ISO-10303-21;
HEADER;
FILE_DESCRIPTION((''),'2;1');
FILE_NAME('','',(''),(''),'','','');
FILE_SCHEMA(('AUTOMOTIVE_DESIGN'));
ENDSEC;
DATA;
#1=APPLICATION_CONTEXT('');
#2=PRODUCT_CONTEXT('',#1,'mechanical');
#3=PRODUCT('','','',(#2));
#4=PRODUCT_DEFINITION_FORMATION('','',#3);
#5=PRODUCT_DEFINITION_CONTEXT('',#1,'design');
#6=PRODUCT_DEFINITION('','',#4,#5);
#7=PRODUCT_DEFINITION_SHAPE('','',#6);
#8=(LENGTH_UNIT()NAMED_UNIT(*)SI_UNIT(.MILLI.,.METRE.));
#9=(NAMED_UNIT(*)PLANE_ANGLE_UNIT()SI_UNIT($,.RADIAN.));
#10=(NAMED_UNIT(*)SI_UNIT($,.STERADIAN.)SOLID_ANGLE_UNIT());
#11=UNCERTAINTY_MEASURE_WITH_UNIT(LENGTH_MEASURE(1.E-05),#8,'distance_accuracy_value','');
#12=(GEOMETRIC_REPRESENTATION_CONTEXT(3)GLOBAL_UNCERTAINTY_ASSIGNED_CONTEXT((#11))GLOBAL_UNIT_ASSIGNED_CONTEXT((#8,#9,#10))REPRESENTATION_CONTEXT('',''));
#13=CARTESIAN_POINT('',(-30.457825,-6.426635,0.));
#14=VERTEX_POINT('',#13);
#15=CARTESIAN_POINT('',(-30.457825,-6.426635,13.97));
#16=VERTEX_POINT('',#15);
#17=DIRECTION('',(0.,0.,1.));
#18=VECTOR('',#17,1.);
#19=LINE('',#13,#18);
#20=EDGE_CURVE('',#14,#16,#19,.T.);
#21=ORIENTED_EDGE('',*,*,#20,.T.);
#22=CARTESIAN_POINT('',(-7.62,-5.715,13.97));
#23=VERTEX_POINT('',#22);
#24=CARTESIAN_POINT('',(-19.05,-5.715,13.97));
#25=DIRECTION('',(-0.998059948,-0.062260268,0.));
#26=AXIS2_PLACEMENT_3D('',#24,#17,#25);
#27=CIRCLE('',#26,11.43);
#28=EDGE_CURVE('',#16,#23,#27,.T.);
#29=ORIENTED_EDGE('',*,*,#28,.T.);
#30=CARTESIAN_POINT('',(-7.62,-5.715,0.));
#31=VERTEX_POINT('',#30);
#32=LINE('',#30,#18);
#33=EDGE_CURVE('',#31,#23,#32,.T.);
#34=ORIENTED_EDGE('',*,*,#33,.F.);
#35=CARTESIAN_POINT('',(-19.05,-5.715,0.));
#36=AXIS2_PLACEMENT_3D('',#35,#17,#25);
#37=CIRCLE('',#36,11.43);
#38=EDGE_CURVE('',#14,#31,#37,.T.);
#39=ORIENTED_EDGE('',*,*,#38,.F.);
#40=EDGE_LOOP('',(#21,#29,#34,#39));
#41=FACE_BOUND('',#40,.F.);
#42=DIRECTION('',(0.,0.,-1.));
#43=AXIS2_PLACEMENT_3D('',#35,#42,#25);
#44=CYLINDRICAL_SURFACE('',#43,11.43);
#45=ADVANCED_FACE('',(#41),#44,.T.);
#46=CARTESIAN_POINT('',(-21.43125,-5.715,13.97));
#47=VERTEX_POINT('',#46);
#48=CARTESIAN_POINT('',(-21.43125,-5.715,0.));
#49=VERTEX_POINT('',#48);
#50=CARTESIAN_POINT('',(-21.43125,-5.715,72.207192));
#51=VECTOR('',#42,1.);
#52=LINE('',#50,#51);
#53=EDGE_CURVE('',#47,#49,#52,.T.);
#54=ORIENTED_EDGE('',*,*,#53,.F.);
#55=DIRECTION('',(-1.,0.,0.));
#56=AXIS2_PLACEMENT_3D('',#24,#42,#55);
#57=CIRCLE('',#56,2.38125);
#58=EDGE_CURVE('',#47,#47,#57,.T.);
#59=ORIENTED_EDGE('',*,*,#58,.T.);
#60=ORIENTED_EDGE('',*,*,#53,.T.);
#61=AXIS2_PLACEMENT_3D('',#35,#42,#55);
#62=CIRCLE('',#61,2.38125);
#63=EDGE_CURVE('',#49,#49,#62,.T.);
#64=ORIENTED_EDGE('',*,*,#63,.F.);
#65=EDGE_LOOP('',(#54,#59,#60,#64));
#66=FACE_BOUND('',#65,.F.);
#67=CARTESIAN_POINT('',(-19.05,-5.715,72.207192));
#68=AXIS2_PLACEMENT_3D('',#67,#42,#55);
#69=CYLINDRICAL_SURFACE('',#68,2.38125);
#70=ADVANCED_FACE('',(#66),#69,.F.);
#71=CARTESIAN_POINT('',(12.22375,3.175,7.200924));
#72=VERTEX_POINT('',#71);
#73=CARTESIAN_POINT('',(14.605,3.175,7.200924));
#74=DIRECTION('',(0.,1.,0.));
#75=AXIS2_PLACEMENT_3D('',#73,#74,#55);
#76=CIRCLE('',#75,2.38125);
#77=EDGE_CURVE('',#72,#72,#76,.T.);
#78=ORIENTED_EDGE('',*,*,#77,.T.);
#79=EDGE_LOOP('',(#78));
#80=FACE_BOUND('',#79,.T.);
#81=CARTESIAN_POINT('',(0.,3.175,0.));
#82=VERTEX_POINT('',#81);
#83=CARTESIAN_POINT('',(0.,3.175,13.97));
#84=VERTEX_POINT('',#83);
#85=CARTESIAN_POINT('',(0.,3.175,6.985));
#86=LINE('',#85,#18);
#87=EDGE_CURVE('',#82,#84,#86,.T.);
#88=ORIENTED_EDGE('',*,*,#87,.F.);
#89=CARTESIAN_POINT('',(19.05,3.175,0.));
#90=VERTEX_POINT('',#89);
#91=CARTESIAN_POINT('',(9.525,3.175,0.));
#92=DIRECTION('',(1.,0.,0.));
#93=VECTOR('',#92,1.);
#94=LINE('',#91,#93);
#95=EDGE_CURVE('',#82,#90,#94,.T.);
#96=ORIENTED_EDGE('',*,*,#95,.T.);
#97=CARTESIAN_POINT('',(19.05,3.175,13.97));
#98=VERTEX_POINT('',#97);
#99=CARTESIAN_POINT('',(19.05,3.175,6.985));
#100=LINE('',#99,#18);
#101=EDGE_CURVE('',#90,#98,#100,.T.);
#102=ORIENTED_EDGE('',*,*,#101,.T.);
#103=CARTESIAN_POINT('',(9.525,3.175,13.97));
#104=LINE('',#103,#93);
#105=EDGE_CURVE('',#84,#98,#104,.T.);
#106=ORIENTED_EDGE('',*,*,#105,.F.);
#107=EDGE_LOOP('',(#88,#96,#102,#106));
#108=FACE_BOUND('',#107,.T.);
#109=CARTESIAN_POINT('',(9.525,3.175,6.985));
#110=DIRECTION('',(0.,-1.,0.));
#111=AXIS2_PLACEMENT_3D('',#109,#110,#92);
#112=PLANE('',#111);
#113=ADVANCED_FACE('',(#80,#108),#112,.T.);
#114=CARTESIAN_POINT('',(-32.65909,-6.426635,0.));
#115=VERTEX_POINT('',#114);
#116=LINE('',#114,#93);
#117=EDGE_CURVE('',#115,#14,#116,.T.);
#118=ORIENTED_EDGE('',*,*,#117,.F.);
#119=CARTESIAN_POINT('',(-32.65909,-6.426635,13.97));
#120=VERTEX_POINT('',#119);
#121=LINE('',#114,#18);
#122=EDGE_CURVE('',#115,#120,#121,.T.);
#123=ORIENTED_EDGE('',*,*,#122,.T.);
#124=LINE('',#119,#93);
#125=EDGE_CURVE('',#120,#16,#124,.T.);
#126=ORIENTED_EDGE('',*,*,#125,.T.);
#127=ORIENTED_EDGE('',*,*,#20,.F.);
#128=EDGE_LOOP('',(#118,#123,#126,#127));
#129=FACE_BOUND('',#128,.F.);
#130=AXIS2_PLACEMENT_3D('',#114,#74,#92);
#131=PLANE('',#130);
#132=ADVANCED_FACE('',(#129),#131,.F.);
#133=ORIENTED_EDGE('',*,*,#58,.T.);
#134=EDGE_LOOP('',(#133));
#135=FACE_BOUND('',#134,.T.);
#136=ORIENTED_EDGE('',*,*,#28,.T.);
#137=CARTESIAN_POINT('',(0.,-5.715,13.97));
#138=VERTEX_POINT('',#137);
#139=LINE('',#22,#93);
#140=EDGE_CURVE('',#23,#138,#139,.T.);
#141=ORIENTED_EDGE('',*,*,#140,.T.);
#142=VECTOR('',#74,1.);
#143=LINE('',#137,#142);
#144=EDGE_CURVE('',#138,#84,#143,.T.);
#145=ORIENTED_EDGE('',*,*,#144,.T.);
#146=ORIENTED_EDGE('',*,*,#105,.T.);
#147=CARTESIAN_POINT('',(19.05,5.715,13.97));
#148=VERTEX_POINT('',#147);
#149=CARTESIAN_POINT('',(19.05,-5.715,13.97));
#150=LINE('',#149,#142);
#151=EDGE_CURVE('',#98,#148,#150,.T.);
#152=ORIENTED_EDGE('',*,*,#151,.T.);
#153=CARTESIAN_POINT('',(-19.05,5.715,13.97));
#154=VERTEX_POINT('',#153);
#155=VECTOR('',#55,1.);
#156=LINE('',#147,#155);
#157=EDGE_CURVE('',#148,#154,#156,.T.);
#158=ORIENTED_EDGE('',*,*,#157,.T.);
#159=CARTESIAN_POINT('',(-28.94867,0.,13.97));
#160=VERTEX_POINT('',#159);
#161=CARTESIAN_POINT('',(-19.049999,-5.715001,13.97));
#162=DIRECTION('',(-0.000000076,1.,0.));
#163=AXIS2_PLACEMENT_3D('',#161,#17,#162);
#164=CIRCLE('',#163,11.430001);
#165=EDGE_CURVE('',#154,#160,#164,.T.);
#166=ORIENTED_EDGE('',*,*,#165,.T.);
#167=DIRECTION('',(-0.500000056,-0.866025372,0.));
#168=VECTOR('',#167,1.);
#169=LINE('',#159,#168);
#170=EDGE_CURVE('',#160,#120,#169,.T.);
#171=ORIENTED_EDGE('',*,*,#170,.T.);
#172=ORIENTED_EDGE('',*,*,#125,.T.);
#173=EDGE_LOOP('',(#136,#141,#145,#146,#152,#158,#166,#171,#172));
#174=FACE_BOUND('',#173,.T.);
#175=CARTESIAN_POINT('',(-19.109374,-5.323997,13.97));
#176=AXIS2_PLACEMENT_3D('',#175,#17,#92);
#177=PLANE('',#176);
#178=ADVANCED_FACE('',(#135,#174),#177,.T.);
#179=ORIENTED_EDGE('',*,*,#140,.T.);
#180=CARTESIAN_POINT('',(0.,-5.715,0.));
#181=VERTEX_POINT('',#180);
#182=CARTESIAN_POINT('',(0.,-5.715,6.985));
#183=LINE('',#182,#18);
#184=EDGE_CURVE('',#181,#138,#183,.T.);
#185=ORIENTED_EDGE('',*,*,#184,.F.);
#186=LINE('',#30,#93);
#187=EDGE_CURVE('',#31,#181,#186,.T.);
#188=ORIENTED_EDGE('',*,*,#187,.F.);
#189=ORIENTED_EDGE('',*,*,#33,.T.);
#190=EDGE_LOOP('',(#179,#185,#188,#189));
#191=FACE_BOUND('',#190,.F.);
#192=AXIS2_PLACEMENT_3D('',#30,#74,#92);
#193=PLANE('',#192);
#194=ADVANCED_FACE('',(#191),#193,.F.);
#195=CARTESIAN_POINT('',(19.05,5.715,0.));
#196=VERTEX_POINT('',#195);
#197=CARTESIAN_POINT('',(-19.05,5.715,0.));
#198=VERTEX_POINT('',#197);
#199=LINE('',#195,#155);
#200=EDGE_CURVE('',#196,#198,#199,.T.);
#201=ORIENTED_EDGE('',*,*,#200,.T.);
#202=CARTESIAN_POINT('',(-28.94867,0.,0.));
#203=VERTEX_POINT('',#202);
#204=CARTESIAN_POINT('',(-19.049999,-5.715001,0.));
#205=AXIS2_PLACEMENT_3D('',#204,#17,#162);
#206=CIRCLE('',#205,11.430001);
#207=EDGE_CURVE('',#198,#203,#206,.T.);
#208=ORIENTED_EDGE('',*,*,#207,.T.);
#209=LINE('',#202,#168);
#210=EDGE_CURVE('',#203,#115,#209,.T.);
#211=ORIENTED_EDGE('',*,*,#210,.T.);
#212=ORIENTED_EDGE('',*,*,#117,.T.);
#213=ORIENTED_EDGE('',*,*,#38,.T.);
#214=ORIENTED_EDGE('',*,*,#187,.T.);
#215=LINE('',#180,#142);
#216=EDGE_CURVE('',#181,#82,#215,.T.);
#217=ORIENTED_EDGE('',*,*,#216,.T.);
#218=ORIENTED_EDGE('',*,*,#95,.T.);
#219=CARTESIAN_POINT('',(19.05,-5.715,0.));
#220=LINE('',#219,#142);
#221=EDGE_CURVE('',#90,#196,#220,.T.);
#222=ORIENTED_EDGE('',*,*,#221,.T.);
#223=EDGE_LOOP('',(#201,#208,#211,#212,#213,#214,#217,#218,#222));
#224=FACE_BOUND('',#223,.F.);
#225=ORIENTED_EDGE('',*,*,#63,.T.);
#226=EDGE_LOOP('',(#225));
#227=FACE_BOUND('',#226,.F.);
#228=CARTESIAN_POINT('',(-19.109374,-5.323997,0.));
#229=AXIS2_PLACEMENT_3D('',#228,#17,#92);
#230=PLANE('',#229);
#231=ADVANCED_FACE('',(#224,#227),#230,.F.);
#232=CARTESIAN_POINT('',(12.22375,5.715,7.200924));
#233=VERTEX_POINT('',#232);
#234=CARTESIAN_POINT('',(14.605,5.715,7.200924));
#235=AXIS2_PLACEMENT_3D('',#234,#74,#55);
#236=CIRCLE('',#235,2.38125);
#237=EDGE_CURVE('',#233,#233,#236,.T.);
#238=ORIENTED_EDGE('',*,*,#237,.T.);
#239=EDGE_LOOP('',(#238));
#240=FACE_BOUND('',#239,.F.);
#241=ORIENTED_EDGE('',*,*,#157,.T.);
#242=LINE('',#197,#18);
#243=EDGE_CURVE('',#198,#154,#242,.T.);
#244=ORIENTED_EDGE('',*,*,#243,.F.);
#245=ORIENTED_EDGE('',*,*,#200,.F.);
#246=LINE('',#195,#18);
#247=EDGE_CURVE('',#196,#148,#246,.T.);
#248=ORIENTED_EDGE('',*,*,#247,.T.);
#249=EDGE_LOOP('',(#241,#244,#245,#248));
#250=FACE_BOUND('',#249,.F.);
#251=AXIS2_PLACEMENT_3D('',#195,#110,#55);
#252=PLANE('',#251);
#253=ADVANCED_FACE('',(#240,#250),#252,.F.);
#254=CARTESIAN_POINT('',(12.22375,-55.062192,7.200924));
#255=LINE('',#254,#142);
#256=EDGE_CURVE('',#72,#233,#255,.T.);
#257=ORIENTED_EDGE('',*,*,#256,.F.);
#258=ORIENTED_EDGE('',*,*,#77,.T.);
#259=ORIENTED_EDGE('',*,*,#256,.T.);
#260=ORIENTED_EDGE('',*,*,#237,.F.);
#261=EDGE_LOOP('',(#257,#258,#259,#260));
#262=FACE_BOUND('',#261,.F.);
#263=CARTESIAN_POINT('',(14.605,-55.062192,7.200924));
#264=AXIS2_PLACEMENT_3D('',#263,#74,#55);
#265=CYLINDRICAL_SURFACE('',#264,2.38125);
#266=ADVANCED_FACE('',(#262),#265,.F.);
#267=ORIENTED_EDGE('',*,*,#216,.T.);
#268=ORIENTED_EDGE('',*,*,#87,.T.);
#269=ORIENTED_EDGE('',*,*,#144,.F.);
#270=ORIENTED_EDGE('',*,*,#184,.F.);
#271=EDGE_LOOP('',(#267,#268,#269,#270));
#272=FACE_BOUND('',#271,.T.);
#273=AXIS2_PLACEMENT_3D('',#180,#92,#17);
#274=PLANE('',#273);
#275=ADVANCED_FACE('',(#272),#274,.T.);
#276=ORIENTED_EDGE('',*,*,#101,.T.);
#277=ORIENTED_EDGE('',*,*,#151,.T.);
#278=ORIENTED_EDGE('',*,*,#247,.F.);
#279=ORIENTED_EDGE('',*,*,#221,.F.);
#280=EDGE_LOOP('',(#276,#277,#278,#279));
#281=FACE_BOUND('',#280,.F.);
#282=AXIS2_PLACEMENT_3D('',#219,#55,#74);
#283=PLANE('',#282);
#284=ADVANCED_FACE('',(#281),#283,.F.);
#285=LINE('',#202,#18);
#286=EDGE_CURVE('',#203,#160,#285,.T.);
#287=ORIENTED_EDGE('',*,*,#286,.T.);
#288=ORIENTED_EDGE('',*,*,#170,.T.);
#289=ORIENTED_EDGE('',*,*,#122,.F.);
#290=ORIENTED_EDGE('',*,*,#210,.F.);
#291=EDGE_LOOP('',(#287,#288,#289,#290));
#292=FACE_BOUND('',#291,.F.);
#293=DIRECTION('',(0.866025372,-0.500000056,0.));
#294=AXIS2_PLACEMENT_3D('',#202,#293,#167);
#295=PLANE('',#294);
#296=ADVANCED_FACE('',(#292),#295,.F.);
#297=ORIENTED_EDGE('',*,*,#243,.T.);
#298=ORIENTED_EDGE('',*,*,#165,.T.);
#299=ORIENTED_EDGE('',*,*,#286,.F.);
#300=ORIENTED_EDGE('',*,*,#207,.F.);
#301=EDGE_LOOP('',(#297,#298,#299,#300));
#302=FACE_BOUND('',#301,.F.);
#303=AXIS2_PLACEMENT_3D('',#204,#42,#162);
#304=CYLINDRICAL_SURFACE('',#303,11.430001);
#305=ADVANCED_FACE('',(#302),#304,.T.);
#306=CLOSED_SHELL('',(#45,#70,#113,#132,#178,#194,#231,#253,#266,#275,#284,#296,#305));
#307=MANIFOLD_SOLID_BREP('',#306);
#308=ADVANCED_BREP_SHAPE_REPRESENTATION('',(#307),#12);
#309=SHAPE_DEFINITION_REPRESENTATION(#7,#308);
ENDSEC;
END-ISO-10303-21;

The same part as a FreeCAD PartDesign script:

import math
import FreeCAD as App
import Part
import Sketcher
Q = App.Units.Quantity


def add_polygon(sketch, points):
    """Adds a closed chain of lines whose ends are joined by coincident constraints."""
    first, n = sketch.GeometryCount, len(points)
    for a, b in zip(points, points[1:] + points[:1]):
        sketch.addGeometry(Part.LineSegment(App.Vector(*a, 0), App.Vector(*b, 0)), False)
    for i in range(n):
        sketch.addConstraint(Sketcher.Constraint("Coincident", first + i, 2, first + (i + 1) % n, 1))

doc = App.newDocument("Part")
body = doc.addObject("PartDesign::Body", "Body")

# Sketch on XY plane
sketch1 = body.newObject("Sketcher::SketchObject", "Sketch")
sketch1.AttachmentSupport = (doc.getObject("XY_Plane"), [""])
sketch1.MapMode = "FlatFace"
sketch1.addGeometry([
    Part.ArcOfCircle(Part.Circle(App.Vector(-19, -5.7, 0), App.Vector(0, 0, 1), 11.4), math.radians(-176), math.radians(0)),  # 0
    Part.LineSegment(App.Vector(-7.6, -5.7, 0), App.Vector(19.1, -5.7, 0)),  # 1
    Part.LineSegment(App.Vector(19.1, -5.7, 0), App.Vector(19.1, 5.7, 0)),  # 2
    Part.LineSegment(App.Vector(19.1, 5.7, 0), App.Vector(-19.1, 5.7, 0)),  # 3
    Part.ArcOfCircle(Part.Circle(App.Vector(-19, -5.7, 0), App.Vector(0, 0, 1), 11.4), math.radians(90), math.radians(150)),  # 4
    Part.LineSegment(App.Vector(-28.9, 0, 0), App.Vector(-32.7, -6.4, 0)),  # 5
    Part.LineSegment(App.Vector(-32.7, -6.4, 0), App.Vector(-30.5, -6.4, 0)),  # 6
], False)
sketch1.addConstraint([
    Sketcher.Constraint("Coincident", 0, 2, 1, 1),
    Sketcher.Constraint("Coincident", 1, 2, 2, 1),
    Sketcher.Constraint("Coincident", 2, 2, 3, 1),
    Sketcher.Constraint("Tangent", 3, 2, 4, 1),
    Sketcher.Constraint("Tangent", 4, 2, 5, 1),
    Sketcher.Constraint("Coincident", 5, 2, 6, 1),
    Sketcher.Constraint("Coincident", 6, 2, 0, 1),
    Sketcher.Constraint("Horizontal", 1),
    Sketcher.Constraint("Vertical", 2),
    Sketcher.Constraint("Horizontal", 3),
    Sketcher.Constraint("Horizontal", 6),
    Sketcher.Constraint("Coincident", 4, 3, 0, 3),
    Sketcher.Constraint("Equal", 0, 4),
    Sketcher.Constraint("Symmetric", 1, 2, 3, 2, -1, 1),
    Sketcher.Constraint("PointOnObject", 4, 2, -1),
    Sketcher.Constraint("Horizontal", 4, 3, 0, 2),
    Sketcher.Constraint("Radius", 0, Q("0.45 in")),
    Sketcher.Constraint("DistanceX", 3, 2, 3, 1, Q("1.5 in")),
    Sketcher.Constraint("Distance", 5, 7.420839),
])
pad1 = body.newObject("PartDesign::Pad", "Pad")
pad1.Profile = sketch1
pad1.Length = Q("0.55 in")

# Sketch on XY plane
sketch2 = body.newObject("Sketcher::SketchObject", "Sketch001")
sketch2.AttachmentSupport = (doc.getObject("XY_Plane"), [""])
sketch2.MapMode = "FlatFace"
sketch2.AttachmentOffset = App.Placement(App.Vector(0, 0, 0.55 * 25.4), App.Rotation())
sketch2.addGeometry(Part.Circle(App.Vector(-19.1, -5.7, 0), App.Vector(0, 0, 1), 2.4), False)
sketch2.addConstraint([
    Sketcher.Constraint("Diameter", 0, Q("0.1875 in")),
    Sketcher.Constraint("DistanceX", 0, 3, -1, 1, Q("0.75 in")),
    Sketcher.Constraint("DistanceY", 0, 3, -1, 1, Q("0.225 in")),
])
doc.recompute()
hole = body.newObject("PartDesign::Hole", "Hole")
hole.Profile = sketch2
hole.ThreadType = "None"
hole.Diameter = Q("0.1875 in")
hole.DepthType = "ThroughAll"

# Sketch on XZ plane
sketch3 = body.newObject("Sketcher::SketchObject", "Sketch002")
sketch3.AttachmentSupport = (doc.getObject("XZ_Plane"), [""])
sketch3.MapMode = "FlatFace"
sketch3.AttachmentOffset = App.Placement(App.Vector(0, 0, 0.225 * 25.4), App.Rotation())
add_polygon(sketch3, [(0, 14), (0, 0), (19, 0), (19, 14)])  # lines 0-3
sketch3.addConstraint([
    Sketcher.Constraint("Vertical", 0),
    Sketcher.Constraint("Horizontal", 1),
    Sketcher.Constraint("Vertical", 2),
    Sketcher.Constraint("Horizontal", 3),
    Sketcher.Constraint("Coincident", 0, 2, -1, 1),
    Sketcher.Constraint("DistanceX", 1, 1, 1, 2, Q("0.75 in")),
    Sketcher.Constraint("DistanceY", 0, 2, 0, 1, Q("0.55 in")),
])
pocket1 = body.newObject("PartDesign::Pocket", "Pocket")
pocket1.Profile = sketch3
pocket1.Length = Q("0.35 in")

# Sketch on XZ plane
sketch4 = body.newObject("Sketcher::SketchObject", "Sketch003")
sketch4.AttachmentSupport = (doc.getObject("XZ_Plane"), [""])
sketch4.MapMode = "FlatFace"
sketch4.AttachmentOffset = App.Placement(App.Vector(0, 0, -0.125 * 25.4), App.Rotation())
sketch4.addGeometry(Part.Circle(App.Vector(14.6, 7.2, 0), App.Vector(0, 0, 1), 2.4), False)
sketch4.addConstraint([
    Sketcher.Constraint("Diameter", 0, Q("0.1875 in")),
    Sketcher.Constraint("DistanceX", -1, 1, 0, 3, Q("0.575 in")),
    Sketcher.Constraint("DistanceY", -1, 1, 0, 3, 7.200924),
])
doc.recompute()
hole2 = body.newObject("PartDesign::Hole", "Hole001")
hole2.Profile = sketch4
hole2.ThreadType = "None"
hole2.Diameter = Q("0.1875 in")
hole2.DepthType = "ThroughAll"

doc.recompute()
